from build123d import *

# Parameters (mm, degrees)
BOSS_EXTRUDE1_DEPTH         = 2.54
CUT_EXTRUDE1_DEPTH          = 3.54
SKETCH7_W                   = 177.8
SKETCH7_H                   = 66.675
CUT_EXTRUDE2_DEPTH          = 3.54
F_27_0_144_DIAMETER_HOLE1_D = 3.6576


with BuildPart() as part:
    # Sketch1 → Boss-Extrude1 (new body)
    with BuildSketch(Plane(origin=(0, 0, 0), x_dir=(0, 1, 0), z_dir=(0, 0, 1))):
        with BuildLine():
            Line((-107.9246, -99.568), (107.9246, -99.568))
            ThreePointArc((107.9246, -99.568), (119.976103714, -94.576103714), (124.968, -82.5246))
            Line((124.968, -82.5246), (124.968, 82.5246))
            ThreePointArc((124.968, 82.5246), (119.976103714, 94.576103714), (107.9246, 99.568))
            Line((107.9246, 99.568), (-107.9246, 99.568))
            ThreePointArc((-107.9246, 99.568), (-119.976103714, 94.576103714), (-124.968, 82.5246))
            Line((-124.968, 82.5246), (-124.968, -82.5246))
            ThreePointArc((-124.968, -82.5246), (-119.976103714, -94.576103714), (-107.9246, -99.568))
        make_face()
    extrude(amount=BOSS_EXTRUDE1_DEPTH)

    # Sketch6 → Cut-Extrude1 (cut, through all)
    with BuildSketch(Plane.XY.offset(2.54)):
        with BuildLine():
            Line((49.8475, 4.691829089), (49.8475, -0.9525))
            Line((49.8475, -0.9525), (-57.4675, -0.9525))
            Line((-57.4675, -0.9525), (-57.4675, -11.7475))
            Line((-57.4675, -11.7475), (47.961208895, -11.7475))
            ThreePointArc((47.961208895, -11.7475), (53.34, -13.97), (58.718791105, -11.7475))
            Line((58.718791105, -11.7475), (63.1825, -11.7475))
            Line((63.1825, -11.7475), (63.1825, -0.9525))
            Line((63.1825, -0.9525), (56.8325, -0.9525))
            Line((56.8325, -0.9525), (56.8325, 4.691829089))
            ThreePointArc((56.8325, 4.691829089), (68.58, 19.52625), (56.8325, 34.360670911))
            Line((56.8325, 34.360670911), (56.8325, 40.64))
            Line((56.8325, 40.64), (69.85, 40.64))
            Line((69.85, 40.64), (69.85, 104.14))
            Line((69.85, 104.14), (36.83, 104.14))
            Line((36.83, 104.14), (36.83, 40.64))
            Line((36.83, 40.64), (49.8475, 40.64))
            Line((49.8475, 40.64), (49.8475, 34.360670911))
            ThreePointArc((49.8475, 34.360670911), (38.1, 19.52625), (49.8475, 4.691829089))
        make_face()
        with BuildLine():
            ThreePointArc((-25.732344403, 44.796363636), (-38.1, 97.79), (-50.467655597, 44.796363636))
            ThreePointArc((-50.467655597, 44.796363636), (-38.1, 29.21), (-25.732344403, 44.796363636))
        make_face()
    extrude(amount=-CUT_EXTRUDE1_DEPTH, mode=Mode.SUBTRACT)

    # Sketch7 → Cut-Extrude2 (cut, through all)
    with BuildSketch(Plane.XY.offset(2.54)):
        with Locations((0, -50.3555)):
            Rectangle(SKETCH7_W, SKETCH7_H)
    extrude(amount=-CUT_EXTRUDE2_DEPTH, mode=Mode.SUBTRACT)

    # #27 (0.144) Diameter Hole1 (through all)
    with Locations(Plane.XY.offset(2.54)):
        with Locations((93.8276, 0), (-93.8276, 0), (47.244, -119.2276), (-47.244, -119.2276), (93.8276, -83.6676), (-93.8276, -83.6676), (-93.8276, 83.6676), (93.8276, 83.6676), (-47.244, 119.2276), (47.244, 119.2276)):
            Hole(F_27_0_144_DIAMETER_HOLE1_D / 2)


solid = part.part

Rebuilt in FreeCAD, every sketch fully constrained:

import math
import FreeCAD as App
import Part
import Sketcher
Q = App.Units.Quantity

doc = App.newDocument("Part")
params = doc.addObject("Spreadsheet::Sheet", "Params")
for row, (alias, value) in enumerate([
    ("sketch1_radius", "0.671 in"),
    ("sketch1_width", "6.498 in"),
    ("sketch1_height", "8.498 in"),
    ("pad1_length", "0.1 in"),
    ("sketch2_radius", "0.3 in"),
    ("sketch2_radius2", "0.6 in"),
    ("sketch2_radius3", "1.1 in"),
    ("sketch2_radius4", "0.5 in"),
    ("sketch2_width", "1.3 in"),
    ("sketch3_width", "7 in"),
    ("sketch3_height", "2.625 in"),
    ("sketch4_diameter", "0.144 in"),
    ("hole_diameter", "0.144 in"),
], start=1):
    params.set(f"A{row}", alias)
    params.set(f"B{row}", "=" + value)
    params.setAlias(f"B{row}", alias)

body = doc.addObject("PartDesign::Body", "Body")

# Sketch on XY plane
sketch1 = doc.addObject("Sketcher::SketchObject", "Sketch")
body.addObject(sketch1)
sketch1.AttachmentSupport = (doc.XY_Plane, [""])
sketch1.MapMode = "FlatFace"
sketch1.addGeometry(Part.LineSegment(App.Vector(99.568, -107.9246, 0), App.Vector(99.568, 107.9246, 0)), False)
sketch1.addGeometry(Part.ArcOfCircle(Part.Circle(App.Vector(82.5246, 107.9246, 0), App.Vector(0, 0, 1), 17.0434), math.radians(0), math.radians(90)), False)
sketch1.addGeometry(Part.LineSegment(App.Vector(82.5246, 124.968, 0), App.Vector(-82.5246, 124.968, 0)), False)
sketch1.addGeometry(Part.ArcOfCircle(Part.Circle(App.Vector(-82.5246, 107.9246, 0), App.Vector(0, 0, 1), 17.0434), math.radians(90), math.radians(180)), False)
sketch1.addGeometry(Part.LineSegment(App.Vector(-99.568, 107.9246, 0), App.Vector(-99.568, -107.9246, 0)), False)
sketch1.addGeometry(Part.ArcOfCircle(Part.Circle(App.Vector(-82.5246, -107.9246, 0), App.Vector(0, 0, 1), 17.0434), math.radians(-180), math.radians(-90)), False)
sketch1.addGeometry(Part.LineSegment(App.Vector(-82.5246, -124.968, 0), App.Vector(82.5246, -124.968, 0)), False)
sketch1.addGeometry(Part.ArcOfCircle(Part.Circle(App.Vector(82.5246, -107.9246, 0), App.Vector(0, 0, 1), 17.0434), math.radians(-90), math.radians(0)), False)
sketch1.addConstraint(Sketcher.Constraint("Tangent", 0, 2, 1, 1))
sketch1.addConstraint(Sketcher.Constraint("Tangent", 1, 2, 2, 1))
sketch1.addConstraint(Sketcher.Constraint("Tangent", 2, 2, 3, 1))
sketch1.addConstraint(Sketcher.Constraint("Tangent", 3, 2, 4, 1))
sketch1.addConstraint(Sketcher.Constraint("Tangent", 4, 2, 5, 1))
sketch1.addConstraint(Sketcher.Constraint("Tangent", 5, 2, 6, 1))
sketch1.addConstraint(Sketcher.Constraint("Tangent", 6, 2, 7, 1))
sketch1.addConstraint(Sketcher.Constraint("Tangent", 7, 2, 0, 1))
sketch1.addConstraint(Sketcher.Constraint("Vertical", 0))
sketch1.addConstraint(Sketcher.Constraint("Horizontal", 2))
sketch1.addConstraint(Sketcher.Constraint("Vertical", 4))
sketch1.addConstraint(Sketcher.Constraint("Horizontal", 6))
sketch1.addConstraint(Sketcher.Constraint("Equal", 1, 3))
sketch1.addConstraint(Sketcher.Constraint("Equal", 3, 5))
sketch1.addConstraint(Sketcher.Constraint("Equal", 5, 7))
sketch1.addConstraint(Sketcher.Constraint("Symmetric", 1, 3, 5, 3, -1, 1))
sketch1.addConstraint(Sketcher.Constraint("Radius", 1, Q("0.671 in")))
sketch1.addConstraint(Sketcher.Constraint("DistanceX", 2, 2, 2, 1, Q("6.498 in")))
sketch1.addConstraint(Sketcher.Constraint("DistanceY", 0, 1, 0, 2, Q("8.498 in")))
sketch1.setExpression("Constraints[16]", "Params.sketch1_radius")
sketch1.setExpression("Constraints[17]", "Params.sketch1_width")
sketch1.setExpression("Constraints[18]", "Params.sketch1_height")
pad1 = doc.addObject("PartDesign::Pad", "Pad")
body.addObject(pad1)
pad1.Profile = sketch1
pad1.setExpression("Length", "Params.pad1_length")

# Sketch on XY plane
sketch2 = doc.addObject("Sketcher::SketchObject", "Sketch001")
body.addObject(sketch2)
sketch2.AttachmentSupport = (doc.XY_Plane, [""])
sketch2.MapMode = "FlatFace"
sketch2.AttachmentOffset = App.Placement(App.Vector(0, 0, 0.1 * 25.4), App.Rotation())
sketch2.addGeometry(Part.LineSegment(App.Vector(49.8475, 4.691829, 0), App.Vector(49.8475, -0.9525, 0)), False)
sketch2.addGeometry(Part.LineSegment(App.Vector(49.8475, -0.9525, 0), App.Vector(-57.4675, -0.9525, 0)), False)
sketch2.addGeometry(Part.LineSegment(App.Vector(-57.4675, -0.9525, 0), App.Vector(-57.4675, -11.7475, 0)), False)
sketch2.addGeometry(Part.LineSegment(App.Vector(-57.4675, -11.7475, 0), App.Vector(47.961209, -11.7475, 0)), False)
sketch2.addGeometry(Part.ArcOfCircle(Part.Circle(App.Vector(53.34, -6.35, 0), App.Vector(0, 0, 1), 7.62), math.radians(-134.900528), math.radians(-45.099472)), False)
sketch2.addGeometry(Part.LineSegment(App.Vector(58.718791, -11.7475, 0), App.Vector(63.1825, -11.7475, 0)), False)
sketch2.addGeometry(Part.LineSegment(App.Vector(63.1825, -11.7475, 0), App.Vector(63.1825, -0.9525, 0)), False)
sketch2.addGeometry(Part.LineSegment(App.Vector(63.1825, -0.9525, 0), App.Vector(56.8325, -0.9525, 0)), False)
sketch2.addGeometry(Part.LineSegment(App.Vector(56.8325, -0.9525, 0), App.Vector(56.8325, 4.691829, 0)), False)
sketch2.addGeometry(Part.ArcOfCircle(Part.Circle(App.Vector(53.34, 19.52625, 0), App.Vector(0, 0, 1), 15.24), math.radians(-76.751985), math.radians(76.751985)), False)
sketch2.addGeometry(Part.LineSegment(App.Vector(56.8325, 34.360671, 0), App.Vector(56.8325, 40.64, 0)), False)
sketch2.addGeometry(Part.LineSegment(App.Vector(56.8325, 40.64, 0), App.Vector(69.85, 40.64, 0)), False)
sketch2.addGeometry(Part.LineSegment(App.Vector(69.85, 40.64, 0), App.Vector(69.85, 104.14, 0)), False)
sketch2.addGeometry(Part.LineSegment(App.Vector(69.85, 104.14, 0), App.Vector(36.83, 104.14, 0)), False)
sketch2.addGeometry(Part.LineSegment(App.Vector(36.83, 104.14, 0), App.Vector(36.83, 40.64, 0)), False)
sketch2.addGeometry(Part.LineSegment(App.Vector(36.83, 40.64, 0), App.Vector(49.8475, 40.64, 0)), False)
sketch2.addGeometry(Part.LineSegment(App.Vector(49.8475, 40.64, 0), App.Vector(49.8475, 34.360671, 0)), False)
sketch2.addGeometry(Part.ArcOfCircle(Part.Circle(App.Vector(53.34, 19.52625, 0), App.Vector(0, 0, 1), 15.24), math.radians(103.248015), math.radians(256.751985)), False)
sketch2.addGeometry(Part.ArcOfCircle(Part.Circle(App.Vector(-38.1, 69.85, 0), App.Vector(0, 0, 1), 27.94), math.radians(-63.726882), math.radians(243.726882)), False)
sketch2.addGeometry(Part.ArcOfCircle(Part.Circle(App.Vector(-38.1, 41.91, 0), App.Vector(0, 0, 1), 12.7), math.radians(166.863441), math.radians(373.136559)), False)
sketch2.addConstraint(Sketcher.Constraint("Coincident", 0, 2, 1, 1))
sketch2.addConstraint(Sketcher.Constraint("Coincident", 1, 2, 2, 1))
sketch2.addConstraint(Sketcher.Constraint("Coincident", 2, 2, 3, 1))
sketch2.addConstraint(Sketcher.Constraint("Coincident", 3, 2, 4, 1))
sketch2.addConstraint(Sketcher.Constraint("Coincident", 4, 2, 5, 1))
sketch2.addConstraint(Sketcher.Constraint("Coincident", 5, 2, 6, 1))
sketch2.addConstraint(Sketcher.Constraint("Coincident", 6, 2, 7, 1))
sketch2.addConstraint(Sketcher.Constraint("Coincident", 7, 2, 8, 1))
sketch2.addConstraint(Sketcher.Constraint("Coincident", 8, 2, 9, 1))
sketch2.addConstraint(Sketcher.Constraint("Coincident", 9, 2, 10, 1))
sketch2.addConstraint(Sketcher.Constraint("Coincident", 10, 2, 11, 1))
sketch2.addConstraint(Sketcher.Constraint("Coincident", 11, 2, 12, 1))
sketch2.addConstraint(Sketcher.Constraint("Coincident", 12, 2, 13, 1))
sketch2.addConstraint(Sketcher.Constraint("Coincident", 13, 2, 14, 1))
sketch2.addConstraint(Sketcher.Constraint("Coincident", 14, 2, 15, 1))
sketch2.addConstraint(Sketcher.Constraint("Coincident", 15, 2, 16, 1))
sketch2.addConstraint(Sketcher.Constraint("Coincident", 16, 2, 17, 1))
sketch2.addConstraint(Sketcher.Constraint("Coincident", 17, 2, 0, 1))
sketch2.addConstraint(Sketcher.Constraint("Coincident", 18, 1, 19, 2))
sketch2.addConstraint(Sketcher.Constraint("Coincident", 19, 1, 18, 2))
sketch2.addConstraint(Sketcher.Constraint("Vertical", 0))
sketch2.addConstraint(Sketcher.Constraint("Horizontal", 1))
sketch2.addConstraint(Sketcher.Constraint("Vertical", 2))
sketch2.addConstraint(Sketcher.Constraint("Horizontal", 3))
sketch2.addConstraint(Sketcher.Constraint("Horizontal", 5))
sketch2.addConstraint(Sketcher.Constraint("Vertical", 6))
sketch2.addConstraint(Sketcher.Constraint("Horizontal", 7))
sketch2.addConstraint(Sketcher.Constraint("Vertical", 8))
sketch2.addConstraint(Sketcher.Constraint("Vertical", 10))
sketch2.addConstraint(Sketcher.Constraint("Horizontal", 11))
sketch2.addConstraint(Sketcher.Constraint("Vertical", 12))
sketch2.addConstraint(Sketcher.Constraint("Horizontal", 13))
sketch2.addConstraint(Sketcher.Constraint("Vertical", 14))
sketch2.addConstraint(Sketcher.Constraint("Horizontal", 15))
sketch2.addConstraint(Sketcher.Constraint("Vertical", 16))
sketch2.addConstraint(Sketcher.Constraint("Coincident", 17, 3, 9, 3))
sketch2.addConstraint(Sketcher.Constraint("Equal", 9, 17))
sketch2.addConstraint(Sketcher.Constraint("Horizontal", 3, 2, 4, 2))
sketch2.addConstraint(Sketcher.Constraint("Horizontal", 1, 2, 6, 2))
sketch2.addConstraint(Sketcher.Constraint("Horizontal", 11, 2, 14, 2))
sketch2.addConstraint(Sketcher.Constraint("Horizontal", 9, 2, 16, 2))
sketch2.addConstraint(Sketcher.Constraint("Horizontal", 8, 2, 17, 2))
sketch2.addConstraint(Sketcher.Constraint("Horizontal", 18, 1, 19, 1))
sketch2.addConstraint(Sketcher.Constraint("Vertical", 4, 3, 9, 3))
sketch2.addConstraint(Sketcher.Constraint("Vertical", 8, 2, 9, 2))
sketch2.addConstraint(Sketcher.Constraint("Equal", 11, 15))
sketch2.addConstraint(Sketcher.Constraint("Radius", 4, Q("0.3 in")))
sketch2.addConstraint(Sketcher.Constraint("Radius", 9, Q("0.6 in")))
sketch2.addConstraint(Sketcher.Constraint("Radius", 18, Q("1.1 in")))
sketch2.addConstraint(Sketcher.Constraint("Radius", 19, Q("0.5 in")))
sketch2.addConstraint(Sketcher.Constraint("DistanceX", 13, 2, 13, 1, Q("1.3 in")))
sketch2.addConstraint(Sketcher.Constraint("DistanceY", 12, 1, 12, 2, Q("2.5 in")))
sketch2.addConstraint(Sketcher.Constraint("DistanceY", 4, 3, 18, 3, Q("3 in")))
sketch2.addConstraint(Sketcher.Constraint("DistanceX", 7, 2, 7, 1, Q("0.25 in")))
sketch2.addConstraint(Sketcher.Constraint("DistanceX", -1, 1, 4, 3, Q("2.1 in")))
sketch2.addConstraint(Sketcher.Constraint("DistanceX", 18, 3, -1, 1, Q("1.5 in")))
sketch2.addConstraint(Sketcher.Constraint("DistanceY", -1, 1, 10, 2, Q("1.6 in")))
sketch2.addConstraint(Sketcher.Constraint("DistanceY", 19, 3, 18, 3, Q("1.1 in")))
sketch2.addConstraint(Sketcher.Constraint("DistanceX", 1, 2, 1, 1, Q("4.225 in")))
sketch2.addConstraint(Sketcher.Constraint("DistanceY", 2, 2, 2, 1, Q("0.425 in")))
sketch2.addConstraint(Sketcher.Constraint("DistanceY", 4, 3, -1, 1, Q("0.25 in")))
sketch2.addConstraint(Sketcher.Constraint("DistanceX", 11, 1, 11, 2, Q("0.5125 in")))
sketch2.addConstraint(Sketcher.Constraint("DistanceY", 0, 2, 19, 3, Q("1.6875 in")))
sketch2.addConstraint(Sketcher.Constraint("DistanceY", 0, 2, 0, 1, Q("5.644329 mm")))
sketch2.setExpression("Constraints[46]", "Params.sketch2_radius")
sketch2.setExpression("Constraints[47]", "Params.sketch2_radius2")
sketch2.setExpression("Constraints[48]", "Params.sketch2_radius3")
sketch2.setExpression("Constraints[49]", "Params.sketch2_radius4")
sketch2.setExpression("Constraints[50]", "Params.sketch2_width")
pocket1 = doc.addObject("PartDesign::Pocket", "Pocket")
body.addObject(pocket1)
pocket1.Profile = sketch2
pocket1.Type = "ThroughAll"

# Sketch on XY plane
sketch3 = doc.addObject("Sketcher::SketchObject", "Sketch002")
body.addObject(sketch3)
sketch3.AttachmentSupport = (doc.XY_Plane, [""])
sketch3.MapMode = "FlatFace"
sketch3.AttachmentOffset = App.Placement(App.Vector(0, 0, 0.1 * 25.4), App.Rotation())
sketch3.addGeometry(Part.LineSegment(App.Vector(-88.9, -17.018, 0), App.Vector(-88.9, -83.693, 0)), False)
sketch3.addGeometry(Part.LineSegment(App.Vector(-88.9, -83.693, 0), App.Vector(88.9, -83.693, 0)), False)
sketch3.addGeometry(Part.LineSegment(App.Vector(88.9, -83.693, 0), App.Vector(88.9, -17.018, 0)), False)
sketch3.addGeometry(Part.LineSegment(App.Vector(88.9, -17.018, 0), App.Vector(-88.9, -17.018, 0)), False)
sketch3.addConstraint(Sketcher.Constraint("Coincident", 0, 2, 1, 1))
sketch3.addConstraint(Sketcher.Constraint("Coincident", 1, 2, 2, 1))
sketch3.addConstraint(Sketcher.Constraint("Coincident", 2, 2, 3, 1))
sketch3.addConstraint(Sketcher.Constraint("Coincident", 3, 2, 0, 1))
sketch3.addConstraint(Sketcher.Constraint("Vertical", 0))
sketch3.addConstraint(Sketcher.Constraint("Horizontal", 1))
sketch3.addConstraint(Sketcher.Constraint("Vertical", 2))
sketch3.addConstraint(Sketcher.Constraint("Horizontal", 3))
sketch3.addConstraint(Sketcher.Constraint("DistanceX", 1, 1, 1, 2, Q("7 in")))
sketch3.addConstraint(Sketcher.Constraint("DistanceX", 0, 2, -1, 1, Q("3.5 in")))
sketch3.addConstraint(Sketcher.Constraint("DistanceY", 0, 2, 0, 1, Q("2.625 in")))
sketch3.addConstraint(Sketcher.Constraint("DistanceY", 2, 2, -1, 1, Q("0.67 in")))
sketch3.setExpression("Constraints[8]", "Params.sketch3_width")
sketch3.setExpression("Constraints[10]", "Params.sketch3_height")
pocket2 = doc.addObject("PartDesign::Pocket", "Pocket001")
body.addObject(pocket2)
pocket2.Profile = sketch3
pocket2.Type = "ThroughAll"

# Sketch on XY plane
sketch4 = doc.addObject("Sketcher::SketchObject", "Sketch003")
body.addObject(sketch4)
sketch4.AttachmentSupport = (doc.XY_Plane, [""])
sketch4.MapMode = "FlatFace"
sketch4.AttachmentOffset = App.Placement(App.Vector(0, 0, 0.1 * 25.4), App.Rotation())
sketch4.addGeometry(Part.Circle(App.Vector(93.8276, 0, 0), App.Vector(0, 0, 1), 1.8288), False)
sketch4.addGeometry(Part.Circle(App.Vector(-93.8276, 0, 0), App.Vector(0, 0, 1), 1.8288), False)
sketch4.addGeometry(Part.Circle(App.Vector(47.244, -119.2276, 0), App.Vector(0, 0, 1), 1.8288), False)
sketch4.addGeometry(Part.Circle(App.Vector(-47.244, -119.2276, 0), App.Vector(0, 0, 1), 1.8288), False)
sketch4.addGeometry(Part.Circle(App.Vector(93.8276, -83.6676, 0), App.Vector(0, 0, 1), 1.8288), False)
sketch4.addGeometry(Part.Circle(App.Vector(-93.8276, -83.6676, 0), App.Vector(0, 0, 1), 1.8288), False)
sketch4.addGeometry(Part.Circle(App.Vector(-93.8276, 83.6676, 0), App.Vector(0, 0, 1), 1.8288), False)
sketch4.addGeometry(Part.Circle(App.Vector(93.8276, 83.6676, 0), App.Vector(0, 0, 1), 1.8288), False)
sketch4.addGeometry(Part.Circle(App.Vector(-47.244, 119.2276, 0), App.Vector(0, 0, 1), 1.8288), False)
sketch4.addGeometry(Part.Circle(App.Vector(47.244, 119.2276, 0), App.Vector(0, 0, 1), 1.8288), False)
sketch4.addConstraint(Sketcher.Constraint("Equal", 0, 1))
sketch4.addConstraint(Sketcher.Constraint("Equal", 1, 2))
sketch4.addConstraint(Sketcher.Constraint("Equal", 2, 3))
sketch4.addConstraint(Sketcher.Constraint("Equal", 3, 4))
sketch4.addConstraint(Sketcher.Constraint("Equal", 4, 5))
sketch4.addConstraint(Sketcher.Constraint("Equal", 5, 6))
sketch4.addConstraint(Sketcher.Constraint("Equal", 6, 7))
sketch4.addConstraint(Sketcher.Constraint("Equal", 7, 8))
sketch4.addConstraint(Sketcher.Constraint("Equal", 8, 9))
sketch4.addConstraint(Sketcher.Constraint("Symmetric", 0, 3, 1, 3, -1, 1))
sketch4.addConstraint(Sketcher.Constraint("Symmetric", 4, 3, 6, 3, -1, 1))
sketch4.addConstraint(Sketcher.Constraint("Symmetric", 5, 3, 7, 3, -1, 1))
sketch4.addConstraint(Sketcher.Constraint("Symmetric", 2, 3, 8, 3, -1, 1))
sketch4.addConstraint(Sketcher.Constraint("Symmetric", 3, 3, 9, 3, -1, 1))
sketch4.addConstraint(Sketcher.Constraint("Symmetric", 2, 3, 3, 3, -2))
sketch4.addConstraint(Sketcher.Constraint("Symmetric", 4, 3, 5, 3, -2))
sketch4.addConstraint(Sketcher.Constraint("PointOnObject", 0, 3, -1))
sketch4.addConstraint(Sketcher.Constraint("Vertical", 0, 3, 4, 3))
sketch4.addConstraint(Sketcher.Constraint("Diameter", 0, Q("0.144 in")))
sketch4.addConstraint(Sketcher.Constraint("DistanceY", 2, 3, 4, 3, Q("1.4 in")))
sketch4.addConstraint(Sketcher.Constraint("DistanceX", -1, 1, 2, 3, Q("1.86 in")))
sketch4.addConstraint(Sketcher.Constraint("DistanceX", -1, 1, 0, 3, Q("3.694 in")))
sketch4.addConstraint(Sketcher.Constraint("DistanceY", 2, 3, -1, 1, Q("4.694 in")))
sketch4.setExpression("Constraints[18]", "Params.sketch4_diameter")
doc.recompute()
hole = doc.addObject("PartDesign::Hole", "Hole")
body.addObject(hole)
hole.Profile = sketch4
hole.ThreadType = "None"
hole.setExpression("Diameter", "Params.hole_diameter")
hole.DepthType = "ThroughAll"

doc.recompute()
